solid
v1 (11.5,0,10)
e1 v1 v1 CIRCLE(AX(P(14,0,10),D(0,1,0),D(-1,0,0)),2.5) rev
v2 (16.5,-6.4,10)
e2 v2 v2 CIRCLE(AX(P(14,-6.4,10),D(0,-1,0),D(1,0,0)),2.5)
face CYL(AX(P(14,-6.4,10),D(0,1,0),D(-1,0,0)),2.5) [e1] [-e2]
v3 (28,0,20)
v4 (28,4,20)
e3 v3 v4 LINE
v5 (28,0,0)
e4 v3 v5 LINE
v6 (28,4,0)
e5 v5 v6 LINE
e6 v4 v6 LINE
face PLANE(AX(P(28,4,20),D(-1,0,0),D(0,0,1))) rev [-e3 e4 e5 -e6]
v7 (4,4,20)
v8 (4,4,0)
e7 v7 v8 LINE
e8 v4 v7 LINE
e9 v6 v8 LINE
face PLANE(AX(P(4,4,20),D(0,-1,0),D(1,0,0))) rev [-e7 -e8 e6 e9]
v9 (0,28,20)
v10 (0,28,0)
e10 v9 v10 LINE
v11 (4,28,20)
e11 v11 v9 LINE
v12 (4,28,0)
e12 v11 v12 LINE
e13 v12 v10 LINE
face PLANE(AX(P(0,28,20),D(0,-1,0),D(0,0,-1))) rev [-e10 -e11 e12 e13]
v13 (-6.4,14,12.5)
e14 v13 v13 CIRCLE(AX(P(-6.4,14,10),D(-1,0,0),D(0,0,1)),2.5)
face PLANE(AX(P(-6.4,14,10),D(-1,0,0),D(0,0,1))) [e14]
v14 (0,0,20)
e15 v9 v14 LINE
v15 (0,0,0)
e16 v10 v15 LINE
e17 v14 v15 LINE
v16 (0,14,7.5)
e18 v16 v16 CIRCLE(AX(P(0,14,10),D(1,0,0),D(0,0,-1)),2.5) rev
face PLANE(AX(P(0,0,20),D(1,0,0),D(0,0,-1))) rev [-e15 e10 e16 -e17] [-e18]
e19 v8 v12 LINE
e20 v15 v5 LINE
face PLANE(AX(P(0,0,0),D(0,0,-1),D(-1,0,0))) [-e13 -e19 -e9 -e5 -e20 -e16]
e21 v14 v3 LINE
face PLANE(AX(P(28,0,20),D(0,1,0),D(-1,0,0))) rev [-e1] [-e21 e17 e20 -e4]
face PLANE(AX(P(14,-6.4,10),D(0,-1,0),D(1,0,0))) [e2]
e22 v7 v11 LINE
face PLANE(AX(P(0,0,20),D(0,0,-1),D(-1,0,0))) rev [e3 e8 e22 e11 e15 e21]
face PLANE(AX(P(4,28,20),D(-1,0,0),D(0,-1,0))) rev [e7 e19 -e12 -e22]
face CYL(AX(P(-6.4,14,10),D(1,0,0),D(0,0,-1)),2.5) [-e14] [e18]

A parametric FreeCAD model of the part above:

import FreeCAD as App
import Part
import Sketcher
from FreeCAD import Vector
Q = App.Units.Quantity


def add_polygon(sketch, points):
    """Adds a closed chain of lines whose ends are joined by coincident constraints."""
    first, n = sketch.GeometryCount, len(points)
    for a, b in zip(points, points[1:] + points[:1]):
        sketch.addGeometry(Part.LineSegment(App.Vector(*a, 0), App.Vector(*b, 0)), False)
    for i in range(n):
        sketch.addConstraint(Sketcher.Constraint("Coincident", first + i, 2, first + (i + 1) % n, 1))

doc = App.newDocument("Part")
body = doc.addObject("PartDesign::Body", "Body")

# Sketch on XY plane
sketch1 = doc.addObject("Sketcher::SketchObject", "Sketch")
body.addObject(sketch1)
sketch1.AttachmentSupport = (doc.XY_Plane, [""])
sketch1.MapMode = "FlatFace"
add_polygon(sketch1, [(0, 28), (0, 0), (28, 0), (28, 4), (4, 4), (4, 28)])  # lines 0-5
sketch1.addConstraint(Sketcher.Constraint("Vertical", 0))
sketch1.addConstraint(Sketcher.Constraint("Horizontal", 1))
sketch1.addConstraint(Sketcher.Constraint("Vertical", 2))
sketch1.addConstraint(Sketcher.Constraint("Horizontal", 3))
sketch1.addConstraint(Sketcher.Constraint("Vertical", 4))
sketch1.addConstraint(Sketcher.Constraint("Horizontal", 5))
sketch1.addConstraint(Sketcher.Constraint("Coincident", 0, 2, -1, 1))
sketch1.addConstraint(Sketcher.Constraint("Equal", 1, 0))
sketch1.addConstraint(Sketcher.Constraint("Equal", 5, 2))
sketch1.addConstraint(Sketcher.Constraint("DistanceX", 1, 1, 1, 2, Q("28 mm")))
sketch1.addConstraint(Sketcher.Constraint("DistanceX", 3, 2, 3, 1, Q("24 mm")))
pad1 = doc.addObject("PartDesign::Pad", "Pad")
body.addObject(pad1)
pad1.Profile = sketch1
pad1.Length = 20

# Sketch on YZ plane
sketch2 = doc.addObject("Sketcher::SketchObject", "Sketch001")
body.addObject(sketch2)
sketch2.AttachmentSupport = (doc.YZ_Plane, [""])
sketch2.MapMode = "FlatFace"
sketch2.addGeometry(Part.Circle(Vector(14, 10, 0), Vector(0, 0, 1), 2.5), False)
sketch2.addConstraint(Sketcher.Constraint("Diameter", 0, Q("5 mm")))
sketch2.addConstraint(Sketcher.Constraint("DistanceX", -1, 1, 0, 3, Q("14 mm")))
sketch2.addConstraint(Sketcher.Constraint("DistanceY", -1, 1, 0, 3, Q("10 mm")))
pad2 = doc.addObject("PartDesign::Pad", "Pad001")
body.addObject(pad2)
pad2.Profile = sketch2
pad2.Length = 6.4
pad2.Reversed = True

# Sketch on XZ plane
sketch3 = doc.addObject("Sketcher::SketchObject", "Sketch002")
body.addObject(sketch3)
sketch3.AttachmentSupport = (doc.XZ_Plane, [""])
sketch3.MapMode = "FlatFace"
sketch3.addGeometry(Part.Circle(Vector(14, 10, 0), Vector(0, 0, 1), 2.5), False)
sketch3.addConstraint(Sketcher.Constraint("Diameter", 0, Q("5 mm")))
sketch3.addConstraint(Sketcher.Constraint("DistanceX", -1, 1, 0, 3, Q("14 mm")))
sketch3.addConstraint(Sketcher.Constraint("DistanceY", -1, 1, 0, 3, Q("10 mm")))
pad3 = doc.addObject("PartDesign::Pad", "Pad002")
body.addObject(pad3)
pad3.Profile = sketch3
pad3.Length = 6.4

doc.recompute()
